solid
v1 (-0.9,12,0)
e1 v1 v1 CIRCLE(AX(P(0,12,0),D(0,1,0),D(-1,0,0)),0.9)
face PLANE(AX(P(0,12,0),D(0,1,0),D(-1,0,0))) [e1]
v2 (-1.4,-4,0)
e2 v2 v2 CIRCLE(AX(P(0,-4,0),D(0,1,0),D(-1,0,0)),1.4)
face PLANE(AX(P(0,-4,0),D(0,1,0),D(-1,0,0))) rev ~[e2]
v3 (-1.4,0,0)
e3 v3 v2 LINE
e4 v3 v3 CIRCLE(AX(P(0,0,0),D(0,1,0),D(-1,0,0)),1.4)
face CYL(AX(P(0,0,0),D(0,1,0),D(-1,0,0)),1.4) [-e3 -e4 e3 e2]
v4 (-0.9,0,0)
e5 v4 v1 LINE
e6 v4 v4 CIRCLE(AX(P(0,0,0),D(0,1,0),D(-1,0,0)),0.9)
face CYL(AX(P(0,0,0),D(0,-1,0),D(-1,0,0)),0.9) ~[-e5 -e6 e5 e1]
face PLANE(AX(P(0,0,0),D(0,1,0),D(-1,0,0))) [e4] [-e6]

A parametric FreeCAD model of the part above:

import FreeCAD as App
import Part
import Sketcher
from FreeCAD import Vector
Q = App.Units.Quantity

doc = App.newDocument("Part")
body = doc.addObject("PartDesign::Body", "Body")

# Sketch on XZ plane
sketch1 = doc.addObject("Sketcher::SketchObject", "Sketch")
body.addObject(sketch1)
sketch1.AttachmentSupport = (doc.XZ_Plane, [""])
sketch1.MapMode = "FlatFace"
sketch1.addGeometry(Part.Circle(Vector(0, 0, 0), Vector(0, 0, 1), 0.9), False)
sketch1.addConstraint([
    Sketcher.Constraint("Coincident", 0, 3, -1, 1),
    Sketcher.Constraint("Diameter", 0, Q("1.8 mm")),
])
pad1 = doc.addObject("PartDesign::Pad", "Pad")
body.addObject(pad1)
pad1.Profile = sketch1
pad1.Length = 12
pad1.Reversed = True

# Sketch on XZ plane
sketch2 = doc.addObject("Sketcher::SketchObject", "Sketch001")
body.addObject(sketch2)
sketch2.AttachmentSupport = (doc.XZ_Plane, [""])
sketch2.MapMode = "FlatFace"
sketch2.addGeometry(Part.Circle(Vector(0, 0, 0), Vector(0, 0, 1), 1.4), False)
sketch2.addConstraint([
    Sketcher.Constraint("Coincident", 0, 3, -1, 1),
    Sketcher.Constraint("Diameter", 0, Q("2.8 mm")),
])
pad2 = doc.addObject("PartDesign::Pad", "Pad001")
body.addObject(pad2)
pad2.Profile = sketch2
pad2.Length = 4

doc.recompute()
